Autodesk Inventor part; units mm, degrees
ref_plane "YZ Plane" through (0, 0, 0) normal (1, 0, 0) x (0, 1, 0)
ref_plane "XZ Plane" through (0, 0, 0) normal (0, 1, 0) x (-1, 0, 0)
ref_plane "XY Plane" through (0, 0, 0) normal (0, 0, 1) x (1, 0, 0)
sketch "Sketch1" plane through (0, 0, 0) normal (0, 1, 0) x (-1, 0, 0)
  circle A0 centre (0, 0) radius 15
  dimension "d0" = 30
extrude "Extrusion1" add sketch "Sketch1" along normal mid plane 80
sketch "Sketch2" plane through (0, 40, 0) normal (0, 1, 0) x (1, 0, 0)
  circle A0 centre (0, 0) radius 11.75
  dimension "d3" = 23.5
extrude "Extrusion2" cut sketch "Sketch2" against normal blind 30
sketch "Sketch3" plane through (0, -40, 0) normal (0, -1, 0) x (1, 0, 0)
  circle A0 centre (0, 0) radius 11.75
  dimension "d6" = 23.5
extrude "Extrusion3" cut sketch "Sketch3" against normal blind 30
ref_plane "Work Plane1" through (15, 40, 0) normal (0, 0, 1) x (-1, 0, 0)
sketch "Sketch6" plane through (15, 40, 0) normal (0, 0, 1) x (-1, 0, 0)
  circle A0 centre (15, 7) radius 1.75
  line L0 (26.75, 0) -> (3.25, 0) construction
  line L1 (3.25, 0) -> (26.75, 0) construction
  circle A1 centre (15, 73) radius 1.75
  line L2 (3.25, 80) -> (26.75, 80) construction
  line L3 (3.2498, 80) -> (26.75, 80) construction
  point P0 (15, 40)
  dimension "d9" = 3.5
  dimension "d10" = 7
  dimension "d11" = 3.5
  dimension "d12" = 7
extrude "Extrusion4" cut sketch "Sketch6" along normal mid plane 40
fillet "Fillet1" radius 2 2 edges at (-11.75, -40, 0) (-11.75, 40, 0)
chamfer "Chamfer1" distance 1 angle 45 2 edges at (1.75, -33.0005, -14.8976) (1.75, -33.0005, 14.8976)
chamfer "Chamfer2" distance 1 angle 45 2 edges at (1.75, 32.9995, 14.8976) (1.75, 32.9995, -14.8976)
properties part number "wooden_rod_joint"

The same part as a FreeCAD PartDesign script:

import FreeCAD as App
import Part
import Sketcher


def edges_at(feature, points):
    """Names of the edges that pass closest to the given points."""
    edges = feature.Shape.Edges
    near = lambda p: min(range(len(edges)), key=lambda i: edges[i].distToShape(Part.Vertex(*p))[0])
    return sorted({f"Edge{near(p) + 1}" for p in points})

doc = App.newDocument("Part")
body = doc.addObject("PartDesign::Body", "Body")

sketch1 = doc.addObject("Sketcher::SketchObject", "Sketch")
body.addObject(sketch1)
sketch1.AttachmentSupport = (doc.XZ_Plane, [""])
sketch1.MapMode = "FlatFace"
sketch1.addGeometry(Part.Circle(App.Vector(0, 0, 0), App.Vector(0, 0, 1), 15), False)
sketch1.addConstraint([
    Sketcher.Constraint("Coincident", 0, 3, -1, 1),
    Sketcher.Constraint("Diameter", 0, 30.0),
])
pad1 = doc.addObject("PartDesign::Pad", "Pad")
body.addObject(pad1)
pad1.Profile = sketch1
pad1.Length = 80
pad1.Midplane = True

sketch2 = doc.addObject("Sketcher::SketchObject", "Sketch001")
body.addObject(sketch2)
sketch2.AttachmentSupport = (doc.XZ_Plane, [""])
sketch2.MapMode = "FlatFace"
sketch2.AttachmentOffset = App.Placement(App.Vector(0, 0, -40), App.Rotation())
sketch2.addGeometry(Part.Circle(App.Vector(0, 0, 0), App.Vector(0, 0, 1), 12), False)
sketch2.addConstraint([
    Sketcher.Constraint("Coincident", 0, 3, -1, 1),
    Sketcher.Constraint("Diameter", 0, 23.5),
])
pocket1 = doc.addObject("PartDesign::Pocket", "Pocket")
body.addObject(pocket1)
pocket1.Profile = sketch2
pocket1.Length = 30
pocket1.Reversed = True

sketch3 = doc.addObject("Sketcher::SketchObject", "Sketch002")
body.addObject(sketch3)
sketch3.AttachmentSupport = (doc.XZ_Plane, [""])
sketch3.MapMode = "FlatFace"
sketch3.AttachmentOffset = App.Placement(App.Vector(0, 0, 40), App.Rotation())
sketch3.addGeometry(Part.Circle(App.Vector(0, 0, 0), App.Vector(0, 0, 1), 12), False)
sketch3.addConstraint([
    Sketcher.Constraint("Coincident", 0, 3, -1, 1),
    Sketcher.Constraint("Diameter", 0, 23.5),
])
pocket2 = doc.addObject("PartDesign::Pocket", "Pocket001")
body.addObject(pocket2)
pocket2.Profile = sketch3
pocket2.Length = 30

sketch4 = doc.addObject("Sketcher::SketchObject", "Sketch003")
body.addObject(sketch4)
sketch4.AttachmentSupport = (doc.XY_Plane, [""])
sketch4.MapMode = "FlatFace"
sketch4.addGeometry([
    Part.Circle(App.Vector(0, 33, 0), App.Vector(0, 0, 1), 1.8),
    Part.Circle(App.Vector(0, -33, 0), App.Vector(0, 0, 1), 1.8),
], False)
sketch4.addConstraint([
    Sketcher.Constraint("Equal", 0, 1),
    Sketcher.Constraint("Symmetric", 0, 3, 1, 3, -1, 1),
    Sketcher.Constraint("PointOnObject", 0, 3, -2),
    Sketcher.Constraint("Diameter", 0, 3.5),
    Sketcher.Constraint("DistanceY", -1, 1, 0, 3, 33.0),
])
pocket3 = doc.addObject("PartDesign::Pocket", "Pocket002")
body.addObject(pocket3)
pocket3.Profile = sketch4
pocket3.Length = 40
pocket3.Midplane = True
doc.recompute()

fillet = doc.addObject("PartDesign::Fillet", "Fillet")
body.addObject(fillet)
fillet.Base = (pocket3, edges_at(pocket3, [(-11.75, -40, 0), (-11.75, 40, 0)]))
fillet.Radius = 2
doc.recompute()

chamfer = doc.addObject("PartDesign::Chamfer", "Chamfer")
body.addObject(chamfer)
chamfer.Base = (fillet, edges_at(fillet, [(1.75, -33.001, -14.898), (1.75, -33.001, 14.898)]))
chamfer.Size = 1
doc.recompute()

chamfer2 = doc.addObject("PartDesign::Chamfer", "Chamfer001")
body.addObject(chamfer2)
chamfer2.Base = (chamfer, edges_at(chamfer, [(1.75, 32.999, 14.898), (1.75, 32.999, -14.898)]))
chamfer2.Size = 1

doc.recompute()
